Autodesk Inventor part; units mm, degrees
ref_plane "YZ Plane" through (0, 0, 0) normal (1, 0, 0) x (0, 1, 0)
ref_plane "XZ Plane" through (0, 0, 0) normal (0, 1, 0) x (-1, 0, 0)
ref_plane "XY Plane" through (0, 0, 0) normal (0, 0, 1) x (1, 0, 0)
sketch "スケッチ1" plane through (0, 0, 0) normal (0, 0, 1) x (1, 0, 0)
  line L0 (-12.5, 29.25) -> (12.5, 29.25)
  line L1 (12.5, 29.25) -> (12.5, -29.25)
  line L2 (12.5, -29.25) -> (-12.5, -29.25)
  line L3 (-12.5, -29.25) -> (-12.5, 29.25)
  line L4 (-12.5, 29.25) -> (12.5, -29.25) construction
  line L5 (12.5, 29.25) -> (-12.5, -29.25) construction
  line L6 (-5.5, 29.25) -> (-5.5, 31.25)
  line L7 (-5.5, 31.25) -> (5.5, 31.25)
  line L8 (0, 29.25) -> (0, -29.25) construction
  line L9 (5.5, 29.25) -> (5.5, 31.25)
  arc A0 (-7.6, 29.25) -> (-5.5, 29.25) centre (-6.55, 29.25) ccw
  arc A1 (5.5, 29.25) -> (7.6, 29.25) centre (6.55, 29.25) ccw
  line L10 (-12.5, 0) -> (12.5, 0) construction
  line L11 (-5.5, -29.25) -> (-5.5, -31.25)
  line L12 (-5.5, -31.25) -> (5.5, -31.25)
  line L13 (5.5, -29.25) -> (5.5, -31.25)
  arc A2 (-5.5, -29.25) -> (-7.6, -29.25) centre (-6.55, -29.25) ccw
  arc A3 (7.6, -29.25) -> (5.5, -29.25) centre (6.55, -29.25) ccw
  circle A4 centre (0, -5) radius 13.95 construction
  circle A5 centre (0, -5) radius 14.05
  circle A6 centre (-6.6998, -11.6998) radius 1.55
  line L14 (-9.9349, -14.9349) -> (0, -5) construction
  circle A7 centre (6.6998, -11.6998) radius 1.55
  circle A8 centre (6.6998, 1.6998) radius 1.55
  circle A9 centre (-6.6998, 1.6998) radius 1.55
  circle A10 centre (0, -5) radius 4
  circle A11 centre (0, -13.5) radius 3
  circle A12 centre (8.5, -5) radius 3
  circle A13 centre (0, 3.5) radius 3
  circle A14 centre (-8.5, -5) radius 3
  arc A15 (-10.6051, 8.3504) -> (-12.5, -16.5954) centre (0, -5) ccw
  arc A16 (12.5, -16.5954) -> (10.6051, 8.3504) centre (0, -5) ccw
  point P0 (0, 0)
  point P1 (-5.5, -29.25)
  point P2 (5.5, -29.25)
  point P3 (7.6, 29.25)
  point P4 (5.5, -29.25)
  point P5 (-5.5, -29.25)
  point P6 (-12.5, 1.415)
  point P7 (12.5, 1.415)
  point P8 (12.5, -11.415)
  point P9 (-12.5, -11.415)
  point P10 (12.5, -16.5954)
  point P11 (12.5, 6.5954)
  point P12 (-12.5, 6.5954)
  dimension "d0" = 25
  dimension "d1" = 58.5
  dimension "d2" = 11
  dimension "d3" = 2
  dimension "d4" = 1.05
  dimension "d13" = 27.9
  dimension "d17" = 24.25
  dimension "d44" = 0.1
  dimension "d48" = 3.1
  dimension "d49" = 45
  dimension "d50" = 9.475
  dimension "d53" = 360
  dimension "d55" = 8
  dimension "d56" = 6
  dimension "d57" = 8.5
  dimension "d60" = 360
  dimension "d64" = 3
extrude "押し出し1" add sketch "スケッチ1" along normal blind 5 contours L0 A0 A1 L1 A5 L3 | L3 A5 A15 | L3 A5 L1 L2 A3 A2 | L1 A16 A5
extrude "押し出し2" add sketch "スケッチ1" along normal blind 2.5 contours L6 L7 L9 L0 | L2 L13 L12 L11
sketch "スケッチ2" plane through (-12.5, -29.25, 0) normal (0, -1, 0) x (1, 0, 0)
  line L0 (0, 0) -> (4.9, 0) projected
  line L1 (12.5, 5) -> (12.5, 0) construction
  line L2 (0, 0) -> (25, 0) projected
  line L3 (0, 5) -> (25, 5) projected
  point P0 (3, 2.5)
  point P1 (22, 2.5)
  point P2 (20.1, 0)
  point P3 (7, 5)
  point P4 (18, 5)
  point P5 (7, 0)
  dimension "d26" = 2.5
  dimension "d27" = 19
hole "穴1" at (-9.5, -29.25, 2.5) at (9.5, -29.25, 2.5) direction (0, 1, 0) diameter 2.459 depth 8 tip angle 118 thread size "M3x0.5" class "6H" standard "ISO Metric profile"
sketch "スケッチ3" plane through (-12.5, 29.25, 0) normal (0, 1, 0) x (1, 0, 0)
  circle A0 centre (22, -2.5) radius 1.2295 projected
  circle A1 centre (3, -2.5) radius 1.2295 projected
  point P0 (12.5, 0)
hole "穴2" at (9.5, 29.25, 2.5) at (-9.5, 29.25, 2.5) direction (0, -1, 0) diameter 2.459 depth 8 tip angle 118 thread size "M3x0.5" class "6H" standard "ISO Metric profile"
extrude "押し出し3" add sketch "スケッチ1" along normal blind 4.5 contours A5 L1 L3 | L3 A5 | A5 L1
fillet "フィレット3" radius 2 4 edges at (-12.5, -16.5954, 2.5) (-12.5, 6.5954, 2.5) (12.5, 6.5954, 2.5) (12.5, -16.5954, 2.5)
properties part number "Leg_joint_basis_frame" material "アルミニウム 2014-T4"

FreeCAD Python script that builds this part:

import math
import FreeCAD as App
import Part
import Sketcher
Q = App.Units.Quantity


def edges_at(feature, points):
    """Names of the edges that pass closest to the given points."""
    edges = feature.Shape.Edges
    near = lambda p: min(range(len(edges)), key=lambda i: edges[i].distToShape(Part.Vertex(*p))[0])
    return sorted({f"Edge{near(p) + 1}" for p in points})

doc = App.newDocument("Part")
params = doc.addObject("Spreadsheet::Sheet", "Params")
for row, (alias, value) in enumerate([
    ("sketch1_width", "11 mm"),
    ("sketch1_radius", "1.05 mm"),
    ("sketch1_diameter", "28.1 mm"),
    ("sketch1_radius2", "17.05 mm"),
    ("pad1_length", "5 mm"),
    ("sketch2_width", "11 mm"),
    ("sketch2_height", "2 mm"),
    ("pad2_length", "2.5 mm"),
    ("hole_diameter", "2.459 mm"),
    ("hole_depth", "8 mm"),
    ("hole2_diameter", "2.459 mm"),
    ("hole2_depth", "8 mm"),
    ("sketch5_diameter", "6 mm"),
    ("sketch5_diameter2", "8 mm"),
    ("sketch5_diameter3", "3.1 mm"),
    ("sketch5_diameter4", "28.1 mm"),
    ("pad3_length", "4.5 mm"),
    ("fillet_radius", "2 mm"),
], start=1):
    params.set(f"A{row}", alias)
    params.set(f"B{row}", "=" + value)
    params.setAlias(f"B{row}", alias)

body = doc.addObject("PartDesign::Body", "Body")

sketch1 = body.newObject("Sketcher::SketchObject", "Sketch")
sketch1.AttachmentSupport = (doc.getObject("XY_Plane"), [""])
sketch1.MapMode = "FlatFace"
sketch1.addGeometry([
    Part.LineSegment(App.Vector(-7.6, 29.2, 0), App.Vector(-12.5, 29.2, 0)),
    Part.LineSegment(App.Vector(-12.5, 29.2, 0), App.Vector(-12.5, 6.6, 0)),
    Part.ArcOfCircle(Part.Circle(App.Vector(0, -5, 0), App.Vector(0, 0, 1), 17.1), math.radians(137), math.radians(223)),
    Part.LineSegment(App.Vector(-12.5, -16.6, 0), App.Vector(-12.5, -29.2, 0)),
    Part.LineSegment(App.Vector(-12.5, -29.2, 0), App.Vector(-7.6, -29.2, 0)),
    Part.ArcOfCircle(Part.Circle(App.Vector(-6.5, -29.2, 0), App.Vector(0, 0, 1), 1), math.radians(0), math.radians(180)),
    Part.LineSegment(App.Vector(-5.5, -29.2, 0), App.Vector(5.5, -29.2, 0)),
    Part.ArcOfCircle(Part.Circle(App.Vector(6.5, -29.2, 0), App.Vector(0, 0, 1), 1), math.radians(0), math.radians(180)),
    Part.LineSegment(App.Vector(7.6, -29.2, 0), App.Vector(12.5, -29.2, 0)),
    Part.LineSegment(App.Vector(12.5, -29.2, 0), App.Vector(12.5, -16.6, 0)),
    Part.ArcOfCircle(Part.Circle(App.Vector(0, -5, 0), App.Vector(0, 0, 1), 17), math.radians(-43), math.radians(43)),
    Part.LineSegment(App.Vector(12.5, 6.6, 0), App.Vector(12.5, 29.2, 0)),
    Part.LineSegment(App.Vector(12.5, 29.2, 0), App.Vector(7.6, 29.2, 0)),
    Part.ArcOfCircle(Part.Circle(App.Vector(6.5, 29.2, 0), App.Vector(0, 0, 1), 1), math.radians(180), math.radians(360)),
    Part.LineSegment(App.Vector(5.5, 29.2, 0), App.Vector(-5.5, 29.2, 0)),
    Part.ArcOfCircle(Part.Circle(App.Vector(-6.5, 29.2, 0), App.Vector(0, 0, 1), 1), math.radians(180), math.radians(360)),
    Part.Circle(App.Vector(0, -5, 0), App.Vector(0, 0, 1), 14.1),
], False)
sketch1.addConstraint([
    Sketcher.Constraint("Coincident", 0, 2, 1, 1),
    Sketcher.Constraint("Coincident", 1, 2, 2, 1),
    Sketcher.Constraint("Coincident", 2, 2, 3, 1),
    Sketcher.Constraint("Coincident", 3, 2, 4, 1),
    Sketcher.Constraint("Coincident", 4, 2, 5, 2),
    Sketcher.Constraint("Coincident", 5, 1, 6, 1),
    Sketcher.Constraint("Coincident", 6, 2, 7, 2),
    Sketcher.Constraint("Coincident", 7, 1, 8, 1),
    Sketcher.Constraint("Coincident", 8, 2, 9, 1),
    Sketcher.Constraint("Coincident", 9, 2, 10, 1),
    Sketcher.Constraint("Coincident", 10, 2, 11, 1),
    Sketcher.Constraint("Coincident", 11, 2, 12, 1),
    Sketcher.Constraint("Coincident", 12, 2, 13, 2),
    Sketcher.Constraint("Coincident", 13, 1, 14, 1),
    Sketcher.Constraint("Coincident", 14, 2, 15, 2),
    Sketcher.Constraint("Coincident", 15, 1, 0, 1),
    Sketcher.Constraint("Horizontal", 0),
    Sketcher.Constraint("Vertical", 1),
    Sketcher.Constraint("Vertical", 3),
    Sketcher.Constraint("Horizontal", 4),
    Sketcher.Constraint("Horizontal", 6),
    Sketcher.Constraint("Horizontal", 8),
    Sketcher.Constraint("Vertical", 9),
    Sketcher.Constraint("Vertical", 11),
    Sketcher.Constraint("Horizontal", 12),
    Sketcher.Constraint("Horizontal", 14),
    Sketcher.Constraint("Coincident", 10, 3, 2, 3),
    Sketcher.Constraint("Coincident", 16, 3, 2, 3),
    Sketcher.Constraint("Equal", 5, 7),
    Sketcher.Constraint("Equal", 2, 10),
    Sketcher.Constraint("Equal", 7, 13),
    Sketcher.Constraint("Equal", 13, 15),
    Sketcher.Constraint("Symmetric", 5, 3, 13, 3, -1, 1),
    Sketcher.Constraint("Symmetric", 7, 3, 15, 3, -1, 1),
    Sketcher.Constraint("Symmetric", 0, 2, 8, 2, -1, 1),
    Sketcher.Constraint("Symmetric", 3, 2, 11, 2, -1, 1),
    Sketcher.Constraint("Symmetric", 5, 3, 7, 3, -2),
    Sketcher.Constraint("Symmetric", 3, 2, 8, 2, -2),
    Sketcher.Constraint("PointOnObject", 2, 3, -2),
    Sketcher.Constraint("Horizontal", 15, 3, 0, 2),
    Sketcher.Constraint("Horizontal", 4, 2, 5, 1),
    Sketcher.Constraint("Horizontal", 12, 2, 13, 1),
    Sketcher.Constraint("DistanceX", 6, 1, 6, 2, Q("11 mm")),
    Sketcher.Constraint("Radius", 5, Q("1.05 mm")),
    Sketcher.Constraint("DistanceX", 0, 2, 11, 2, Q("25 mm")),
    Sketcher.Constraint("Diameter", 16, Q("28.1 mm")),
    Sketcher.Constraint("DistanceY", 7, 3, 13, 3, Q("58.5 mm")),
    Sketcher.Constraint("Radius", 2, Q("17.05 mm")),
    Sketcher.Constraint("DistanceY", 5, 3, 2, 3, Q("24.25 mm")),
])
sketch1.setExpression("Constraints[42]", "Params.sketch1_width")
sketch1.setExpression("Constraints[43]", "Params.sketch1_radius")
sketch1.setExpression("Constraints[45]", "Params.sketch1_diameter")
sketch1.setExpression("Constraints[47]", "Params.sketch1_radius2")
pad1 = body.newObject("PartDesign::Pad", "Pad")
pad1.Profile = sketch1
pad1.setExpression("Length", "Params.pad1_length")

sketch2 = body.newObject("Sketcher::SketchObject", "Sketch001")
sketch2.AttachmentSupport = (doc.getObject("XY_Plane"), [""])
sketch2.MapMode = "FlatFace"
sketch2.addGeometry([
    Part.LineSegment(App.Vector(-5.5, 31.2, 0), App.Vector(-5.5, 29.2, 0)),
    Part.LineSegment(App.Vector(-5.5, 29.2, 0), App.Vector(5.5, 29.2, 0)),
    Part.LineSegment(App.Vector(5.5, 29.2, 0), App.Vector(5.5, 31.2, 0)),
    Part.LineSegment(App.Vector(5.5, 31.2, 0), App.Vector(-5.5, 31.2, 0)),
    Part.LineSegment(App.Vector(5.5, -29.2, 0), App.Vector(-5.5, -29.2, 0)),
    Part.LineSegment(App.Vector(-5.5, -29.2, 0), App.Vector(-5.5, -31.2, 0)),
    Part.LineSegment(App.Vector(-5.5, -31.2, 0), App.Vector(5.5, -31.2, 0)),
    Part.LineSegment(App.Vector(5.5, -31.2, 0), App.Vector(5.5, -29.2, 0)),
], False)
sketch2.addConstraint([
    Sketcher.Constraint("Coincident", 0, 2, 1, 1),
    Sketcher.Constraint("Coincident", 1, 2, 2, 1),
    Sketcher.Constraint("Coincident", 2, 2, 3, 1),
    Sketcher.Constraint("Coincident", 3, 2, 0, 1),
    Sketcher.Constraint("Coincident", 4, 2, 5, 1),
    Sketcher.Constraint("Coincident", 5, 2, 6, 1),
    Sketcher.Constraint("Coincident", 6, 2, 7, 1),
    Sketcher.Constraint("Coincident", 7, 2, 4, 1),
    Sketcher.Constraint("Vertical", 0),
    Sketcher.Constraint("Horizontal", 1),
    Sketcher.Constraint("Vertical", 2),
    Sketcher.Constraint("Horizontal", 3),
    Sketcher.Constraint("Horizontal", 4),
    Sketcher.Constraint("Vertical", 5),
    Sketcher.Constraint("Horizontal", 6),
    Sketcher.Constraint("Vertical", 7),
    Sketcher.Constraint("Symmetric", 1, 2, 4, 2, -1, 1),
    Sketcher.Constraint("Symmetric", 3, 2, 6, 2, -1, 1),
    Sketcher.Constraint("Vertical", 3, 2, 4, 2),
    Sketcher.Constraint("DistanceX", 1, 1, 1, 2, Q("11 mm")),
    Sketcher.Constraint("DistanceY", 0, 2, 0, 1, Q("2 mm")),
    Sketcher.Constraint("DistanceY", 4, 2, 0, 2, Q("58.5 mm")),
])
sketch2.setExpression("Constraints[19]", "Params.sketch2_width")
sketch2.setExpression("Constraints[20]", "Params.sketch2_height")
pad2 = body.newObject("PartDesign::Pad", "Pad001")
pad2.Profile = sketch2
pad2.setExpression("Length", "Params.pad2_length")

sketch3 = body.newObject("Sketcher::SketchObject", "Sketch002")
sketch3.AttachmentSupport = (doc.getObject("XZ_Plane"), [""])
sketch3.MapMode = "FlatFace"
sketch3.AttachmentOffset = App.Placement(App.Vector(0, 0, 29.25), App.Rotation())
sketch3.addGeometry([
    Part.Circle(App.Vector(-9.5, 2.5, 0), App.Vector(0, 0, 1), 1.2),
    Part.Circle(App.Vector(9.5, 2.5, 0), App.Vector(0, 0, 1), 1.2),
], False)
sketch3.addConstraint([
    Sketcher.Constraint("Equal", 0, 1),
    Sketcher.Constraint("Symmetric", 0, 3, 1, 3, -2),
    Sketcher.Constraint("Diameter", 0, Q("2.459 mm")),
    Sketcher.Constraint("DistanceX", 0, 3, 1, 3, Q("19 mm")),
    Sketcher.Constraint("DistanceY", -1, 1, 0, 3, Q("2.5 mm")),
])
doc.recompute()
hole = body.newObject("PartDesign::Hole", "Hole")
hole.Profile = sketch3
hole.ThreadType = "None"
hole.setExpression("Diameter", "Params.hole_diameter")
hole.DepthType = "Dimension"
hole.setExpression("Depth", "Params.hole_depth")
hole.DrillPoint = "Angled"
hole.DrillPointAngle = 118

sketch4 = body.newObject("Sketcher::SketchObject", "Sketch003")
sketch4.AttachmentSupport = (doc.getObject("XZ_Plane"), [""])
sketch4.MapMode = "FlatFace"
sketch4.AttachmentOffset = App.Placement(App.Vector(0, 0, -29.25), App.Rotation())
sketch4.addGeometry([
    Part.Circle(App.Vector(9.5, 2.5, 0), App.Vector(0, 0, 1), 1.2),
    Part.Circle(App.Vector(-9.5, 2.5, 0), App.Vector(0, 0, 1), 1.2),
], False)
sketch4.addConstraint([
    Sketcher.Constraint("Equal", 0, 1),
    Sketcher.Constraint("Symmetric", 0, 3, 1, 3, -2),
    Sketcher.Constraint("Diameter", 0, Q("2.459 mm")),
    Sketcher.Constraint("DistanceX", 1, 3, 0, 3, Q("19 mm")),
    Sketcher.Constraint("DistanceY", -1, 1, 0, 3, Q("2.5 mm")),
])
doc.recompute()
hole2 = body.newObject("PartDesign::Hole", "Hole001")
hole2.Profile = sketch4
hole2.ThreadType = "None"
hole2.setExpression("Diameter", "Params.hole2_diameter")
hole2.DepthType = "Dimension"
hole2.setExpression("Depth", "Params.hole2_depth")
hole2.DrillPoint = "Angled"
hole2.DrillPointAngle = 118
hole2.Reversed = True

sketch5 = body.newObject("Sketcher::SketchObject", "Sketch004")
sketch5.AttachmentSupport = (doc.getObject("XY_Plane"), [""])
sketch5.MapMode = "FlatFace"
sketch5.addGeometry([
    Part.Circle(App.Vector(0, -5, 0), App.Vector(0, 0, 1), 14.1),
    Part.Circle(App.Vector(-6.7, -11.7, 0), App.Vector(0, 0, 1), 1.6),
    Part.Circle(App.Vector(0, -13.5, 0), App.Vector(0, 0, 1), 3),
    Part.Circle(App.Vector(-8.5, -5, 0), App.Vector(0, 0, 1), 3),
    Part.Circle(App.Vector(0, -5, 0), App.Vector(0, 0, 1), 4),
    Part.Circle(App.Vector(6.7, -11.7, 0), App.Vector(0, 0, 1), 1.6),
    Part.Circle(App.Vector(8.5, -5, 0), App.Vector(0, 0, 1), 3),
    Part.Circle(App.Vector(-6.7, 1.7, 0), App.Vector(0, 0, 1), 1.6),
    Part.Circle(App.Vector(0, 3.5, 0), App.Vector(0, 0, 1), 3),
    Part.Circle(App.Vector(6.7, 1.7, 0), App.Vector(0, 0, 1), 1.6),
], False)
sketch5.addConstraint([
    Sketcher.Constraint("Coincident", 4, 3, 0, 3),
    Sketcher.Constraint("Equal", 2, 3),
    Sketcher.Constraint("Equal", 1, 5),
    Sketcher.Constraint("Equal", 3, 6),
    Sketcher.Constraint("Equal", 5, 7),
    Sketcher.Constraint("Equal", 6, 8),
    Sketcher.Constraint("Equal", 7, 9),
    Sketcher.Constraint("Symmetric", 1, 3, 5, 3, -2),
    Sketcher.Constraint("Symmetric", 3, 3, 6, 3, -2),
    Sketcher.Constraint("Symmetric", 7, 3, 9, 3, -2),
    Sketcher.Constraint("PointOnObject", 0, 3, -2),
    Sketcher.Constraint("PointOnObject", 2, 3, -2),
    Sketcher.Constraint("PointOnObject", 8, 3, -2),
    Sketcher.Constraint("Horizontal", 0, 3, 3, 3),
    Sketcher.Constraint("Vertical", 1, 3, 7, 3),
    Sketcher.Constraint("Diameter", 2, Q("6 mm")),
    Sketcher.Constraint("Diameter", 4, Q("8 mm")),
    Sketcher.Constraint("Diameter", 1, Q("3.1 mm")),
    Sketcher.Constraint("Diameter", 0, Q("28.1 mm")),
    Sketcher.Constraint("DistanceX", 3, 3, -1, 1, Q("8.5 mm")),
    Sketcher.Constraint("DistanceY", 2, 3, 0, 3, Q("8.5 mm")),
    Sketcher.Constraint("DistanceY", 0, 3, 8, 3, Q("8.5 mm")),
    Sketcher.Constraint("DistanceY", 0, 3, -1, 1, Q("5 mm")),
    Sketcher.Constraint("DistanceX", 1, 3, -1, 1, Q("6.6998 mm")),
    Sketcher.Constraint("DistanceY", 1, 3, -1, 1, Q("11.6998 mm")),
    Sketcher.Constraint("DistanceY", -1, 1, 7, 3, Q("1.6998 mm")),
])
sketch5.setExpression("Constraints[15]", "Params.sketch5_diameter")
sketch5.setExpression("Constraints[16]", "Params.sketch5_diameter2")
sketch5.setExpression("Constraints[17]", "Params.sketch5_diameter3")
sketch5.setExpression("Constraints[18]", "Params.sketch5_diameter4")
pad3 = body.newObject("PartDesign::Pad", "Pad002")
pad3.Profile = sketch5
pad3.setExpression("Length", "Params.pad3_length")
doc.recompute()

fillet = body.newObject("PartDesign::Fillet", "Fillet")
fillet.Base = (pad3, edges_at(pad3, [
    (-12.5, -16.595, 2.5),
    (-12.5, 6.595, 2.5),
    (12.5, 6.595, 2.5),
    (12.5, -16.595, 2.5),
]))
fillet.setExpression("Radius", "Params.fillet_radius")

doc.recompute()
